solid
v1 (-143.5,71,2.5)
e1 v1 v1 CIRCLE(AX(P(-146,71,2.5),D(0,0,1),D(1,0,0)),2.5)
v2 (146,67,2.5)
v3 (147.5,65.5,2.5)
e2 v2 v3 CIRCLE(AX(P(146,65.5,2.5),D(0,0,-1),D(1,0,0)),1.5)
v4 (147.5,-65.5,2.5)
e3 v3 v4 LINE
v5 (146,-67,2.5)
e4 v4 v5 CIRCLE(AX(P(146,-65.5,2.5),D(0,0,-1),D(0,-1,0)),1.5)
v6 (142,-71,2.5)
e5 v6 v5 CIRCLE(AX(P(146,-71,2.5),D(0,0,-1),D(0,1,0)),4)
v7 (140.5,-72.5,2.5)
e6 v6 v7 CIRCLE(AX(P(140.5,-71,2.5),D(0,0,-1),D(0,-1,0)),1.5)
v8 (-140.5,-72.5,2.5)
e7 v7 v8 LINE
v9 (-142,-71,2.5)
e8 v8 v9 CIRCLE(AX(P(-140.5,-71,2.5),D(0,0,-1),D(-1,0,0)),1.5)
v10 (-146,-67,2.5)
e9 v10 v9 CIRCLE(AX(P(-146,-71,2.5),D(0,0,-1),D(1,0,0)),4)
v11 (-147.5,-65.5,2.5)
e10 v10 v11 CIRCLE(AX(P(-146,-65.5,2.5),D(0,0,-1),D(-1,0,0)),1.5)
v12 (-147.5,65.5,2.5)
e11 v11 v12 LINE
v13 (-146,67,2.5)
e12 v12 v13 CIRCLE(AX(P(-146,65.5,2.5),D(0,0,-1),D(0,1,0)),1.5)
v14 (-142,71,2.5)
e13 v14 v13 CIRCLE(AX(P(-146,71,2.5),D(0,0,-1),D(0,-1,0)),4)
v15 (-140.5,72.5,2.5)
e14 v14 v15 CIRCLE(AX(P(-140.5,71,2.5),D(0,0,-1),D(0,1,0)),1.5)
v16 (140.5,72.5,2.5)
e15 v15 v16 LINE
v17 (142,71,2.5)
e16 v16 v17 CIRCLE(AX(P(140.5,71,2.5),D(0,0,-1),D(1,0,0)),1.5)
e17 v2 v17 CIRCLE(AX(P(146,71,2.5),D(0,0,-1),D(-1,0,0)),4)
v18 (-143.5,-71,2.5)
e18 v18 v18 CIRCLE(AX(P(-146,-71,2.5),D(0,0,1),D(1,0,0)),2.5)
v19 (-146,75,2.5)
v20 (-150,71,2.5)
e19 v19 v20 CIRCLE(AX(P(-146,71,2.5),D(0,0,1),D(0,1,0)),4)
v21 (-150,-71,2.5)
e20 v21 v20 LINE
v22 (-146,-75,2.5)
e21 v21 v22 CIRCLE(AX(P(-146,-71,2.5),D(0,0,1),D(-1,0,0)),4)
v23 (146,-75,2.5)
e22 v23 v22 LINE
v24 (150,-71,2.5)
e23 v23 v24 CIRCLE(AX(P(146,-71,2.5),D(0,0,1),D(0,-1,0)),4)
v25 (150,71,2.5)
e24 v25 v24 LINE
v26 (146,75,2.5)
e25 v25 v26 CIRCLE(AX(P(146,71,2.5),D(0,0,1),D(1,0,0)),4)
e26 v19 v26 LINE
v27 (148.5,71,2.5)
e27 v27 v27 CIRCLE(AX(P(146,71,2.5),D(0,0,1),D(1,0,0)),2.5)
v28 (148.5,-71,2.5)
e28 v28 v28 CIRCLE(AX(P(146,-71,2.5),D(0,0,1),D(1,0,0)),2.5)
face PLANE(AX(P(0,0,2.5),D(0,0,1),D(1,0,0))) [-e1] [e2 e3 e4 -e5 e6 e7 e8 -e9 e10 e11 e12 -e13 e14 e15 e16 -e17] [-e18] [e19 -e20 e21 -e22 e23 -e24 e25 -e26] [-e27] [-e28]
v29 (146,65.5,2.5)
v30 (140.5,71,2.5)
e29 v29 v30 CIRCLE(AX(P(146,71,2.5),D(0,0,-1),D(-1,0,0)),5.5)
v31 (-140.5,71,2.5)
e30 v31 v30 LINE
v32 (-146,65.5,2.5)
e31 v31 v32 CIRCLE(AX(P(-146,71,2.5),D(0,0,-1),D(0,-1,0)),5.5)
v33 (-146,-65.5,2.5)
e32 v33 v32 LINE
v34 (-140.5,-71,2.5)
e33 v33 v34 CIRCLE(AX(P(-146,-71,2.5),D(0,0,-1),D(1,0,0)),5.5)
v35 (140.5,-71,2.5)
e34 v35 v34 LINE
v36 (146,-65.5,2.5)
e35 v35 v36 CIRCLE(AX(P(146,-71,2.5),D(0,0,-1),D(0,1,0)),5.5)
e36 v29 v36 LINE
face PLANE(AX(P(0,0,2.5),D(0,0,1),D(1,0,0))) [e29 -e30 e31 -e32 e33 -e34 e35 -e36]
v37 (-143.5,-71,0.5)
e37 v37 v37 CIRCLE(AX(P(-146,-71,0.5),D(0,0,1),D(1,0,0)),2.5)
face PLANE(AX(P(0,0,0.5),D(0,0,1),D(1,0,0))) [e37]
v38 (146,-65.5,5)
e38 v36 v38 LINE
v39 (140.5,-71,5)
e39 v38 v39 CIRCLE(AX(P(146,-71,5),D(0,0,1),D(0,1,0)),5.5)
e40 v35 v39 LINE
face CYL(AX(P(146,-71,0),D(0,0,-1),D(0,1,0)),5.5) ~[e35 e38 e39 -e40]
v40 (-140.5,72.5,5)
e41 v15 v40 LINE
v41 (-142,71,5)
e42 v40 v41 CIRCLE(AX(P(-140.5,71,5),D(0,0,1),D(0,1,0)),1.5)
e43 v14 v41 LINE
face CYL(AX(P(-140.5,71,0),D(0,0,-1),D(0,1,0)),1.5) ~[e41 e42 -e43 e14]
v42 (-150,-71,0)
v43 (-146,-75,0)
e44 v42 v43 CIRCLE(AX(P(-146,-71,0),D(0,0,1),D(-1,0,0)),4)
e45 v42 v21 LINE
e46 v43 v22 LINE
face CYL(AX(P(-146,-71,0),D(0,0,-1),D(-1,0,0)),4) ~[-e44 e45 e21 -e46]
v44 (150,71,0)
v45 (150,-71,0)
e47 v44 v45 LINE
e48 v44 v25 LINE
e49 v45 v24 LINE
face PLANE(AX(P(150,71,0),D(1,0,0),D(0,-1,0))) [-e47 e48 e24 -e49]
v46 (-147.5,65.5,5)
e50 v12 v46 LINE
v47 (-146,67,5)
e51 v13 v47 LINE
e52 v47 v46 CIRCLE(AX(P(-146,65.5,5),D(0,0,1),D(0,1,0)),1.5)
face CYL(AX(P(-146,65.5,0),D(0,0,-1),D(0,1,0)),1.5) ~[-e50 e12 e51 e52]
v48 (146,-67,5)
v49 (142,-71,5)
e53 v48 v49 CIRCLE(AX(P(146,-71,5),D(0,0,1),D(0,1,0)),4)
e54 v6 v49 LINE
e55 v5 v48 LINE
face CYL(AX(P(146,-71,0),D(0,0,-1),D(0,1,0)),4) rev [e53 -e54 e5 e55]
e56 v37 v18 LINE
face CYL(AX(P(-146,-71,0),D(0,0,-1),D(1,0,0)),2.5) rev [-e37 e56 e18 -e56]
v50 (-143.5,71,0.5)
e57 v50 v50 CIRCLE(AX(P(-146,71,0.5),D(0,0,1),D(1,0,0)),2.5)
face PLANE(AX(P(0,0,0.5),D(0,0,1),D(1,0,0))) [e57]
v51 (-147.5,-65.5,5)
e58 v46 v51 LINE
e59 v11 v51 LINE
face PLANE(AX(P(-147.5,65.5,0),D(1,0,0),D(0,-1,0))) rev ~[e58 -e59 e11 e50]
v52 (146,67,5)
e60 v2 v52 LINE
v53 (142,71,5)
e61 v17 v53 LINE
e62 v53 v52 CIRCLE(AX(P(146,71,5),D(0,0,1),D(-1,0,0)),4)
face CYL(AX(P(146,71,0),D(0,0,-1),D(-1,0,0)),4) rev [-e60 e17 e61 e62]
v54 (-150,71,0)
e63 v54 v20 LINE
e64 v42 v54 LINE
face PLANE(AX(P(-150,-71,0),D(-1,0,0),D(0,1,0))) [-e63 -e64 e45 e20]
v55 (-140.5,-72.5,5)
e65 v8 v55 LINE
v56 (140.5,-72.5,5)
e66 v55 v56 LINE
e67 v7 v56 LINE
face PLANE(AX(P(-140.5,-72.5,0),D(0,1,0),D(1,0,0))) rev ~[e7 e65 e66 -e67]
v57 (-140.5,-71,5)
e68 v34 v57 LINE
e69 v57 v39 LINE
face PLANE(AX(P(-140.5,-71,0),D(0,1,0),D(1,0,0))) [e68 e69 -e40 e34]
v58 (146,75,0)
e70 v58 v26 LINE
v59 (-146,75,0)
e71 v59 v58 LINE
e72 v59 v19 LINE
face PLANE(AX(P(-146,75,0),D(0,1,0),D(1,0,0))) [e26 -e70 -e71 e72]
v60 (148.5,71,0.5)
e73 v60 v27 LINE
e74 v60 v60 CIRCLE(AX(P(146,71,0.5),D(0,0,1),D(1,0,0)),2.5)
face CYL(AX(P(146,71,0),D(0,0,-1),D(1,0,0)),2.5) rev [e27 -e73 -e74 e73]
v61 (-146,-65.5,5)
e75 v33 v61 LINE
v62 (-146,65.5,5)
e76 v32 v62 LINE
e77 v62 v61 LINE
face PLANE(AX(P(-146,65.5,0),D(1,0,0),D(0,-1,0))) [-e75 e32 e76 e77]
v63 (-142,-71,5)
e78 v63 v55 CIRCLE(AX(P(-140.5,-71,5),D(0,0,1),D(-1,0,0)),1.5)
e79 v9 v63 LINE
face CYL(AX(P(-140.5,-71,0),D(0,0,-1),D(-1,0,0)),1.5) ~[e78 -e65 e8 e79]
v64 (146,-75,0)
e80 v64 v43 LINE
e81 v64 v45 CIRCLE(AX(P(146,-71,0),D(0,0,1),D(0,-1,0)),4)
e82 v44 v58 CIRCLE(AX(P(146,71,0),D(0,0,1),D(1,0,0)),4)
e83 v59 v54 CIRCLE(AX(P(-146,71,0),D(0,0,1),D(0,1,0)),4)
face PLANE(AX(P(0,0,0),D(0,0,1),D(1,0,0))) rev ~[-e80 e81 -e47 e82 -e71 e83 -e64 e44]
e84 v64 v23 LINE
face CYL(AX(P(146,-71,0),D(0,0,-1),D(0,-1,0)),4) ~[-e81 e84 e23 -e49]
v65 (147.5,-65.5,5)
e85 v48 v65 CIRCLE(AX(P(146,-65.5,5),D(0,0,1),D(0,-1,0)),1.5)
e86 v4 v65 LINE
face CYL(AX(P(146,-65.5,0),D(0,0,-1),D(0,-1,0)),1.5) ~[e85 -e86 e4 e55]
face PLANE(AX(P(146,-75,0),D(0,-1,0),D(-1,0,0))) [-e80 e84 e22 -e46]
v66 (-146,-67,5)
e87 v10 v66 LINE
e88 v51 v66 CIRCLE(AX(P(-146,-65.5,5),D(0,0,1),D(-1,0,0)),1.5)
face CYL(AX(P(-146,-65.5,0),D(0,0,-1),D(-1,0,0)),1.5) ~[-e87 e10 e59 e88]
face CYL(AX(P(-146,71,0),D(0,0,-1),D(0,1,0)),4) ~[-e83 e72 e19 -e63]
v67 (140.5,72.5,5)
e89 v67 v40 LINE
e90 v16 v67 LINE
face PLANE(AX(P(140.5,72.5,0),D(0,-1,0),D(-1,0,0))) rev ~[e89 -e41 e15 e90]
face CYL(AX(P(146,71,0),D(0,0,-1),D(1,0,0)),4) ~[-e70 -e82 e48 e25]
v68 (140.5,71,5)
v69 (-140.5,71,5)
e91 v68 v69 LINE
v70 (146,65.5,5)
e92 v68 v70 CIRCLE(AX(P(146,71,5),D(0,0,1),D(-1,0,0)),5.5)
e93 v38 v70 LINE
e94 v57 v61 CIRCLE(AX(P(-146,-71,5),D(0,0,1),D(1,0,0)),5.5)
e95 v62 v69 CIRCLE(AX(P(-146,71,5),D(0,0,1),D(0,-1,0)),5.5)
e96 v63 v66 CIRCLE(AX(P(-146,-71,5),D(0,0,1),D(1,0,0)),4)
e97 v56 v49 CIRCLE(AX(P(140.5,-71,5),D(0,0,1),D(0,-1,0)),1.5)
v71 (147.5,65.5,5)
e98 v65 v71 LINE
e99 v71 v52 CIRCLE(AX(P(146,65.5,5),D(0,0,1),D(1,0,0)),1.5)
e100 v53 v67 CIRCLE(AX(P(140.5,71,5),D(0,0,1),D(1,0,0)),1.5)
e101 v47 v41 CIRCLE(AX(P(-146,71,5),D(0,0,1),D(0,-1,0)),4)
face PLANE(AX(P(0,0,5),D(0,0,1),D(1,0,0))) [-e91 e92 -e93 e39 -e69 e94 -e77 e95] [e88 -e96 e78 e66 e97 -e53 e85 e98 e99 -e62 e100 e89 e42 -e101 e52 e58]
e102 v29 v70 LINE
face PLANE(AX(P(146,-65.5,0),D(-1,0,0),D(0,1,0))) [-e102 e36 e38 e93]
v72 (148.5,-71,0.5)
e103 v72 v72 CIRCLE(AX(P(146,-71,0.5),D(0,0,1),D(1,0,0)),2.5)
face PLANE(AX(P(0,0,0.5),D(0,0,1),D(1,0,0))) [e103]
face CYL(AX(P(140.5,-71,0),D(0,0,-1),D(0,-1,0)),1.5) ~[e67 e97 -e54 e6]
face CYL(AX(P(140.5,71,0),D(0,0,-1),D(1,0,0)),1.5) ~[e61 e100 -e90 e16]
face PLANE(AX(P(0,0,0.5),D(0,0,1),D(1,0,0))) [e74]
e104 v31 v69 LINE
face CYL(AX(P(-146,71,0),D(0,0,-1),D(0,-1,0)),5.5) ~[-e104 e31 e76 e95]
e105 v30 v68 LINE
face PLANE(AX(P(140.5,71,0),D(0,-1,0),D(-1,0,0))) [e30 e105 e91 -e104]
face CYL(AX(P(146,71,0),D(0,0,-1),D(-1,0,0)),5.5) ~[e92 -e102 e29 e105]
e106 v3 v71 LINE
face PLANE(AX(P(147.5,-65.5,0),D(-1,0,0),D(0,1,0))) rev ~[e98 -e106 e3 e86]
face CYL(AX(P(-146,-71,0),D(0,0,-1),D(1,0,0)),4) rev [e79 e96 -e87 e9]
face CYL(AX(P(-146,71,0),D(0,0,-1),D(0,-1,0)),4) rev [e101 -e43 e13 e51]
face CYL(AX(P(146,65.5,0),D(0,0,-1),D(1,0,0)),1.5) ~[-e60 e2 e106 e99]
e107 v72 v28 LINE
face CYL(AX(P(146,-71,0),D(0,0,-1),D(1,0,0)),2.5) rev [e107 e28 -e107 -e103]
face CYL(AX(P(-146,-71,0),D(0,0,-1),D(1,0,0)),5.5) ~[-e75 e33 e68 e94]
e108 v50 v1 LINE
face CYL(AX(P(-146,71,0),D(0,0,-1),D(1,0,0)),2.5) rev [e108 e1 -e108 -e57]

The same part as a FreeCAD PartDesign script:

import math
import FreeCAD as App
import Part
import Sketcher
Q = App.Units.Quantity

doc = App.newDocument("Part")
body = doc.addObject("PartDesign::Body", "Body")

# Sketch on XY plane
sketch1 = body.newObject("Sketcher::SketchObject", "Sketch")
sketch1.AttachmentSupport = (doc.getObject("XY_Plane"), [""])
sketch1.MapMode = "FlatFace"
sketch1.addGeometry(Part.LineSegment(App.Vector(146, 75, 0), App.Vector(-146, 75, 0)), False)
sketch1.addGeometry(Part.ArcOfCircle(Part.Circle(App.Vector(-146, 71, 0), App.Vector(0, 0, 1), 4), math.radians(90), math.radians(180)), False)
sketch1.addGeometry(Part.LineSegment(App.Vector(-150, 71, 0), App.Vector(-150, -71, 0)), False)
sketch1.addGeometry(Part.ArcOfCircle(Part.Circle(App.Vector(-146, -71, 0), App.Vector(0, 0, 1), 4), math.radians(180), math.radians(270)), False)
sketch1.addGeometry(Part.LineSegment(App.Vector(-146, -75, 0), App.Vector(146, -75, 0)), False)
sketch1.addGeometry(Part.ArcOfCircle(Part.Circle(App.Vector(146, -71, 0), App.Vector(0, 0, 1), 4), math.radians(-90), math.radians(0)), False)
sketch1.addGeometry(Part.LineSegment(App.Vector(150, -71, 0), App.Vector(150, 71, 0)), False)
sketch1.addGeometry(Part.ArcOfCircle(Part.Circle(App.Vector(146, 71, 0), App.Vector(0, 0, 1), 4), math.radians(0), math.radians(90)), False)
sketch1.addGeometry(Part.Circle(App.Vector(-146, -71, 0), App.Vector(0, 0, 1), 2.5), False)
sketch1.addGeometry(Part.Circle(App.Vector(146, -71, 0), App.Vector(0, 0, 1), 2.5), False)
sketch1.addGeometry(Part.Circle(App.Vector(-146, 71, 0), App.Vector(0, 0, 1), 2.5), False)
sketch1.addGeometry(Part.Circle(App.Vector(146, 71, 0), App.Vector(0, 0, 1), 2.5), False)
sketch1.addConstraint(Sketcher.Constraint("Tangent", 0, 2, 1, 1))
sketch1.addConstraint(Sketcher.Constraint("Tangent", 1, 2, 2, 1))
sketch1.addConstraint(Sketcher.Constraint("Tangent", 2, 2, 3, 1))
sketch1.addConstraint(Sketcher.Constraint("Tangent", 3, 2, 4, 1))
sketch1.addConstraint(Sketcher.Constraint("Tangent", 4, 2, 5, 1))
sketch1.addConstraint(Sketcher.Constraint("Tangent", 5, 2, 6, 1))
sketch1.addConstraint(Sketcher.Constraint("Tangent", 6, 2, 7, 1))
sketch1.addConstraint(Sketcher.Constraint("Tangent", 7, 2, 0, 1))
sketch1.addConstraint(Sketcher.Constraint("Horizontal", 0))
sketch1.addConstraint(Sketcher.Constraint("Vertical", 2))
sketch1.addConstraint(Sketcher.Constraint("Horizontal", 4))
sketch1.addConstraint(Sketcher.Constraint("Vertical", 6))
sketch1.addConstraint(Sketcher.Constraint("Coincident", 8, 3, 3, 3))
sketch1.addConstraint(Sketcher.Constraint("Coincident", 9, 3, 5, 3))
sketch1.addConstraint(Sketcher.Constraint("Coincident", 10, 3, 1, 3))
sketch1.addConstraint(Sketcher.Constraint("Coincident", 11, 3, 7, 3))
sketch1.addConstraint(Sketcher.Constraint("Equal", 1, 3))
sketch1.addConstraint(Sketcher.Constraint("Equal", 3, 5))
sketch1.addConstraint(Sketcher.Constraint("Equal", 5, 7))
sketch1.addConstraint(Sketcher.Constraint("Equal", 8, 9))
sketch1.addConstraint(Sketcher.Constraint("Equal", 9, 10))
sketch1.addConstraint(Sketcher.Constraint("Equal", 10, 11))
sketch1.addConstraint(Sketcher.Constraint("Symmetric", 1, 3, 5, 3, -1, 1))
sketch1.addConstraint(Sketcher.Constraint("Diameter", 8, Q("5 mm")))
sketch1.addConstraint(Sketcher.Constraint("Radius", 1, Q("4 mm")))
sketch1.addConstraint(Sketcher.Constraint("DistanceX", 1, 2, -1, 1, Q("150 mm")))
sketch1.addConstraint(Sketcher.Constraint("DistanceY", 2, 2, 2, 1, Q("142 mm")))
pad1 = body.newObject("PartDesign::Pad", "Pad")
pad1.Profile = sketch1
pad1.Length = 2.5

# Sketch on XY plane
sketch2 = body.newObject("Sketcher::SketchObject", "Sketch001")
sketch2.AttachmentSupport = (doc.getObject("XY_Plane"), [""])
sketch2.MapMode = "FlatFace"
sketch2.addGeometry(Part.Circle(App.Vector(-146, 71, 0), App.Vector(0, 0, 1), 2.5), False)
sketch2.addGeometry(Part.Circle(App.Vector(-146, -71, 0), App.Vector(0, 0, 1), 2.5), False)
sketch2.addGeometry(Part.Circle(App.Vector(146, -71, 0), App.Vector(0, 0, 1), 2.5), False)
sketch2.addGeometry(Part.Circle(App.Vector(146, 71, 0), App.Vector(0, 0, 1), 2.5), False)
sketch2.addConstraint(Sketcher.Constraint("Equal", 0, 1))
sketch2.addConstraint(Sketcher.Constraint("Equal", 1, 2))
sketch2.addConstraint(Sketcher.Constraint("Equal", 2, 3))
sketch2.addConstraint(Sketcher.Constraint("Symmetric", 0, 3, 2, 3, -1, 1))
sketch2.addConstraint(Sketcher.Constraint("Symmetric", 1, 3, 3, 3, -1, 1))
sketch2.addConstraint(Sketcher.Constraint("Symmetric", 1, 3, 2, 3, -2))
sketch2.addConstraint(Sketcher.Constraint("Diameter", 0, Q("5 mm")))
sketch2.addConstraint(Sketcher.Constraint("DistanceX", 0, 3, -1, 1, Q("146 mm")))
sketch2.addConstraint(Sketcher.Constraint("DistanceY", -1, 1, 0, 3, Q("71 mm")))
pad2 = body.newObject("PartDesign::Pad", "Pad001")
pad2.Profile = sketch2
pad2.Length = 0.5

# Sketch on XY plane
sketch3 = body.newObject("Sketcher::SketchObject", "Sketch002")
sketch3.AttachmentSupport = (doc.getObject("XY_Plane"), [""])
sketch3.MapMode = "FlatFace"
sketch3.addGeometry(Part.ArcOfCircle(Part.Circle(App.Vector(-146, 71, 0), App.Vector(0, 0, 1), 4), math.radians(-90), math.radians(0)), False)
sketch3.addGeometry(Part.ArcOfCircle(Part.Circle(App.Vector(-146, 65.5, 0), App.Vector(0, 0, 1), 1.5), math.radians(90), math.radians(180)), False)
sketch3.addGeometry(Part.LineSegment(App.Vector(-147.5, 65.5, 0), App.Vector(-147.5, -65.5, 0)), False)
sketch3.addGeometry(Part.ArcOfCircle(Part.Circle(App.Vector(-146, -65.5, 0), App.Vector(0, 0, 1), 1.5), math.radians(180), math.radians(270)), False)
sketch3.addGeometry(Part.ArcOfCircle(Part.Circle(App.Vector(-146, -71, 0), App.Vector(0, 0, 1), 4), math.radians(0), math.radians(90)), False)
sketch3.addGeometry(Part.ArcOfCircle(Part.Circle(App.Vector(-140.5, -71, 0), App.Vector(0, 0, 1), 1.5), math.radians(180), math.radians(270)), False)
sketch3.addGeometry(Part.LineSegment(App.Vector(-140.5, -72.5, 0), App.Vector(140.5, -72.5, 0)), False)
sketch3.addGeometry(Part.ArcOfCircle(Part.Circle(App.Vector(140.5, -71, 0), App.Vector(0, 0, 1), 1.5), math.radians(-90), math.radians(0)), False)
sketch3.addGeometry(Part.ArcOfCircle(Part.Circle(App.Vector(146, -71, 0), App.Vector(0, 0, 1), 4), math.radians(90), math.radians(180)), False)
sketch3.addGeometry(Part.ArcOfCircle(Part.Circle(App.Vector(146, -65.5, 0), App.Vector(0, 0, 1), 1.5), math.radians(-90), math.radians(0)), False)
sketch3.addGeometry(Part.LineSegment(App.Vector(147.5, -65.5, 0), App.Vector(147.5, 65.5, 0)), False)
sketch3.addGeometry(Part.ArcOfCircle(Part.Circle(App.Vector(146, 65.5, 0), App.Vector(0, 0, 1), 1.5), math.radians(0), math.radians(90)), False)
sketch3.addGeometry(Part.ArcOfCircle(Part.Circle(App.Vector(146, 71, 0), App.Vector(0, 0, 1), 4), math.radians(180), math.radians(270)), False)
sketch3.addGeometry(Part.ArcOfCircle(Part.Circle(App.Vector(140.5, 71, 0), App.Vector(0, 0, 1), 1.5), math.radians(0), math.radians(90)), False)
sketch3.addGeometry(Part.LineSegment(App.Vector(140.5, 72.5, 0), App.Vector(-140.5, 72.5, 0)), False)
sketch3.addGeometry(Part.ArcOfCircle(Part.Circle(App.Vector(-140.5, 71, 0), App.Vector(0, 0, 1), 1.5), math.radians(90), math.radians(180)), False)
sketch3.addGeometry(Part.LineSegment(App.Vector(-146, -65.5, 0), App.Vector(-146, 65.5, 0)), False)
sketch3.addGeometry(Part.ArcOfCircle(Part.Circle(App.Vector(-146, 71, 0), App.Vector(0, 0, 1), 5.5), math.radians(-90), math.radians(0)), False)
sketch3.addGeometry(Part.LineSegment(App.Vector(-140.5, 71, 0), App.Vector(140.5, 71, 0)), False)
sketch3.addGeometry(Part.ArcOfCircle(Part.Circle(App.Vector(146, 71, 0), App.Vector(0, 0, 1), 5.5), math.radians(180), math.radians(270)), False)
sketch3.addGeometry(Part.LineSegment(App.Vector(146, 65.5, 0), App.Vector(146, -65.5, 0)), False)
sketch3.addGeometry(Part.ArcOfCircle(Part.Circle(App.Vector(146, -71, 0), App.Vector(0, 0, 1), 5.5), math.radians(90), math.radians(180)), False)
sketch3.addGeometry(Part.LineSegment(App.Vector(140.5, -71, 0), App.Vector(-140.5, -71, 0)), False)
sketch3.addGeometry(Part.ArcOfCircle(Part.Circle(App.Vector(-146, -71, 0), App.Vector(0, 0, 1), 5.5), math.radians(0), math.radians(90)), False)
sketch3.addConstraint(Sketcher.Constraint("Tangent", 0, 1, 1, 1))
sketch3.addConstraint(Sketcher.Constraint("Tangent", 1, 2, 2, 1))
sketch3.addConstraint(Sketcher.Constraint("Tangent", 2, 2, 3, 1))
sketch3.addConstraint(Sketcher.Constraint("Tangent", 3, 2, 4, 2))
sketch3.addConstraint(Sketcher.Constraint("Tangent", 4, 1, 5, 1))
sketch3.addConstraint(Sketcher.Constraint("Tangent", 5, 2, 6, 1))
sketch3.addConstraint(Sketcher.Constraint("Tangent", 6, 2, 7, 1))
sketch3.addConstraint(Sketcher.Constraint("Tangent", 7, 2, 8, 2))
sketch3.addConstraint(Sketcher.Constraint("Tangent", 8, 1, 9, 1))
sketch3.addConstraint(Sketcher.Constraint("Tangent", 9, 2, 10, 1))
sketch3.addConstraint(Sketcher.Constraint("Tangent", 10, 2, 11, 1))
sketch3.addConstraint(Sketcher.Constraint("Tangent", 11, 2, 12, 2))
sketch3.addConstraint(Sketcher.Constraint("Tangent", 12, 1, 13, 1))
sketch3.addConstraint(Sketcher.Constraint("Tangent", 13, 2, 14, 1))
sketch3.addConstraint(Sketcher.Constraint("Tangent", 14, 2, 15, 1))
sketch3.addConstraint(Sketcher.Constraint("Tangent", 15, 2, 0, 2))
sketch3.addConstraint(Sketcher.Constraint("Coincident", 16, 2, 17, 1))
sketch3.addConstraint(Sketcher.Constraint("Coincident", 17, 2, 18, 1))
sketch3.addConstraint(Sketcher.Constraint("Coincident", 18, 2, 19, 1))
sketch3.addConstraint(Sketcher.Constraint("Coincident", 19, 2, 20, 1))
sketch3.addConstraint(Sketcher.Constraint("Coincident", 20, 2, 21, 1))
sketch3.addConstraint(Sketcher.Constraint("Coincident", 21, 2, 22, 1))
sketch3.addConstraint(Sketcher.Constraint("Coincident", 22, 2, 23, 1))
sketch3.addConstraint(Sketcher.Constraint("Coincident", 23, 2, 16, 1))
sketch3.addConstraint(Sketcher.Constraint("Vertical", 2))
sketch3.addConstraint(Sketcher.Constraint("Horizontal", 6))
sketch3.addConstraint(Sketcher.Constraint("Vertical", 10))
sketch3.addConstraint(Sketcher.Constraint("Horizontal", 14))
sketch3.addConstraint(Sketcher.Constraint("Vertical", 16))
sketch3.addConstraint(Sketcher.Constraint("Horizontal", 18))
sketch3.addConstraint(Sketcher.Constraint("Vertical", 20))
sketch3.addConstraint(Sketcher.Constraint("Horizontal", 22))
sketch3.addConstraint(Sketcher.Constraint("Coincident", 17, 3, 0, 3))
sketch3.addConstraint(Sketcher.Constraint("Coincident", 19, 3, 12, 3))
sketch3.addConstraint(Sketcher.Constraint("Coincident", 21, 3, 8, 3))
sketch3.addConstraint(Sketcher.Constraint("Coincident", 23, 3, 4, 3))
sketch3.addConstraint(Sketcher.Constraint("Coincident", 16, 2, 1, 3))
sketch3.addConstraint(Sketcher.Constraint("Coincident", 17, 2, 15, 3))
sketch3.addConstraint(Sketcher.Constraint("Coincident", 18, 2, 13, 3))
sketch3.addConstraint(Sketcher.Constraint("Coincident", 19, 2, 11, 3))
sketch3.addConstraint(Sketcher.Constraint("Coincident", 20, 2, 9, 3))
sketch3.addConstraint(Sketcher.Constraint("Coincident", 21, 2, 7, 3))
sketch3.addConstraint(Sketcher.Constraint("Coincident", 22, 2, 5, 3))
sketch3.addConstraint(Sketcher.Constraint("Equal", 1, 3))
sketch3.addConstraint(Sketcher.Constraint("Equal", 0, 4))
sketch3.addConstraint(Sketcher.Constraint("Equal", 4, 8))
sketch3.addConstraint(Sketcher.Constraint("Equal", 8, 12))
sketch3.addConstraint(Sketcher.Constraint("Symmetric", 0, 3, 8, 3, -1, 1))
sketch3.addConstraint(Sketcher.Constraint("Symmetric", 3, 3, 11, 3, -1, 1))
sketch3.addConstraint(Sketcher.Constraint("Symmetric", 5, 3, 13, 3, -1, 1))
sketch3.addConstraint(Sketcher.Constraint("Symmetric", 4, 3, 8, 3, -2))
sketch3.addConstraint(Sketcher.Constraint("Horizontal", 4, 3, 5, 3))
sketch3.addConstraint(Sketcher.Constraint("Vertical", 0, 3, 1, 3))
sketch3.addConstraint(Sketcher.Constraint("Radius", 0, Q("4 mm")))
sketch3.addConstraint(Sketcher.Constraint("Radius", 1, Q("1.5 mm")))
sketch3.addConstraint(Sketcher.Constraint("DistanceX", 5, 3, -1, 1, Q("140.5 mm")))
sketch3.addConstraint(Sketcher.Constraint("DistanceY", 2, 2, 2, 1, Q("131 mm")))
pad3 = body.newObject("PartDesign::Pad", "Pad002")
pad3.Profile = sketch3
pad3.Length = 5

doc.recompute()
